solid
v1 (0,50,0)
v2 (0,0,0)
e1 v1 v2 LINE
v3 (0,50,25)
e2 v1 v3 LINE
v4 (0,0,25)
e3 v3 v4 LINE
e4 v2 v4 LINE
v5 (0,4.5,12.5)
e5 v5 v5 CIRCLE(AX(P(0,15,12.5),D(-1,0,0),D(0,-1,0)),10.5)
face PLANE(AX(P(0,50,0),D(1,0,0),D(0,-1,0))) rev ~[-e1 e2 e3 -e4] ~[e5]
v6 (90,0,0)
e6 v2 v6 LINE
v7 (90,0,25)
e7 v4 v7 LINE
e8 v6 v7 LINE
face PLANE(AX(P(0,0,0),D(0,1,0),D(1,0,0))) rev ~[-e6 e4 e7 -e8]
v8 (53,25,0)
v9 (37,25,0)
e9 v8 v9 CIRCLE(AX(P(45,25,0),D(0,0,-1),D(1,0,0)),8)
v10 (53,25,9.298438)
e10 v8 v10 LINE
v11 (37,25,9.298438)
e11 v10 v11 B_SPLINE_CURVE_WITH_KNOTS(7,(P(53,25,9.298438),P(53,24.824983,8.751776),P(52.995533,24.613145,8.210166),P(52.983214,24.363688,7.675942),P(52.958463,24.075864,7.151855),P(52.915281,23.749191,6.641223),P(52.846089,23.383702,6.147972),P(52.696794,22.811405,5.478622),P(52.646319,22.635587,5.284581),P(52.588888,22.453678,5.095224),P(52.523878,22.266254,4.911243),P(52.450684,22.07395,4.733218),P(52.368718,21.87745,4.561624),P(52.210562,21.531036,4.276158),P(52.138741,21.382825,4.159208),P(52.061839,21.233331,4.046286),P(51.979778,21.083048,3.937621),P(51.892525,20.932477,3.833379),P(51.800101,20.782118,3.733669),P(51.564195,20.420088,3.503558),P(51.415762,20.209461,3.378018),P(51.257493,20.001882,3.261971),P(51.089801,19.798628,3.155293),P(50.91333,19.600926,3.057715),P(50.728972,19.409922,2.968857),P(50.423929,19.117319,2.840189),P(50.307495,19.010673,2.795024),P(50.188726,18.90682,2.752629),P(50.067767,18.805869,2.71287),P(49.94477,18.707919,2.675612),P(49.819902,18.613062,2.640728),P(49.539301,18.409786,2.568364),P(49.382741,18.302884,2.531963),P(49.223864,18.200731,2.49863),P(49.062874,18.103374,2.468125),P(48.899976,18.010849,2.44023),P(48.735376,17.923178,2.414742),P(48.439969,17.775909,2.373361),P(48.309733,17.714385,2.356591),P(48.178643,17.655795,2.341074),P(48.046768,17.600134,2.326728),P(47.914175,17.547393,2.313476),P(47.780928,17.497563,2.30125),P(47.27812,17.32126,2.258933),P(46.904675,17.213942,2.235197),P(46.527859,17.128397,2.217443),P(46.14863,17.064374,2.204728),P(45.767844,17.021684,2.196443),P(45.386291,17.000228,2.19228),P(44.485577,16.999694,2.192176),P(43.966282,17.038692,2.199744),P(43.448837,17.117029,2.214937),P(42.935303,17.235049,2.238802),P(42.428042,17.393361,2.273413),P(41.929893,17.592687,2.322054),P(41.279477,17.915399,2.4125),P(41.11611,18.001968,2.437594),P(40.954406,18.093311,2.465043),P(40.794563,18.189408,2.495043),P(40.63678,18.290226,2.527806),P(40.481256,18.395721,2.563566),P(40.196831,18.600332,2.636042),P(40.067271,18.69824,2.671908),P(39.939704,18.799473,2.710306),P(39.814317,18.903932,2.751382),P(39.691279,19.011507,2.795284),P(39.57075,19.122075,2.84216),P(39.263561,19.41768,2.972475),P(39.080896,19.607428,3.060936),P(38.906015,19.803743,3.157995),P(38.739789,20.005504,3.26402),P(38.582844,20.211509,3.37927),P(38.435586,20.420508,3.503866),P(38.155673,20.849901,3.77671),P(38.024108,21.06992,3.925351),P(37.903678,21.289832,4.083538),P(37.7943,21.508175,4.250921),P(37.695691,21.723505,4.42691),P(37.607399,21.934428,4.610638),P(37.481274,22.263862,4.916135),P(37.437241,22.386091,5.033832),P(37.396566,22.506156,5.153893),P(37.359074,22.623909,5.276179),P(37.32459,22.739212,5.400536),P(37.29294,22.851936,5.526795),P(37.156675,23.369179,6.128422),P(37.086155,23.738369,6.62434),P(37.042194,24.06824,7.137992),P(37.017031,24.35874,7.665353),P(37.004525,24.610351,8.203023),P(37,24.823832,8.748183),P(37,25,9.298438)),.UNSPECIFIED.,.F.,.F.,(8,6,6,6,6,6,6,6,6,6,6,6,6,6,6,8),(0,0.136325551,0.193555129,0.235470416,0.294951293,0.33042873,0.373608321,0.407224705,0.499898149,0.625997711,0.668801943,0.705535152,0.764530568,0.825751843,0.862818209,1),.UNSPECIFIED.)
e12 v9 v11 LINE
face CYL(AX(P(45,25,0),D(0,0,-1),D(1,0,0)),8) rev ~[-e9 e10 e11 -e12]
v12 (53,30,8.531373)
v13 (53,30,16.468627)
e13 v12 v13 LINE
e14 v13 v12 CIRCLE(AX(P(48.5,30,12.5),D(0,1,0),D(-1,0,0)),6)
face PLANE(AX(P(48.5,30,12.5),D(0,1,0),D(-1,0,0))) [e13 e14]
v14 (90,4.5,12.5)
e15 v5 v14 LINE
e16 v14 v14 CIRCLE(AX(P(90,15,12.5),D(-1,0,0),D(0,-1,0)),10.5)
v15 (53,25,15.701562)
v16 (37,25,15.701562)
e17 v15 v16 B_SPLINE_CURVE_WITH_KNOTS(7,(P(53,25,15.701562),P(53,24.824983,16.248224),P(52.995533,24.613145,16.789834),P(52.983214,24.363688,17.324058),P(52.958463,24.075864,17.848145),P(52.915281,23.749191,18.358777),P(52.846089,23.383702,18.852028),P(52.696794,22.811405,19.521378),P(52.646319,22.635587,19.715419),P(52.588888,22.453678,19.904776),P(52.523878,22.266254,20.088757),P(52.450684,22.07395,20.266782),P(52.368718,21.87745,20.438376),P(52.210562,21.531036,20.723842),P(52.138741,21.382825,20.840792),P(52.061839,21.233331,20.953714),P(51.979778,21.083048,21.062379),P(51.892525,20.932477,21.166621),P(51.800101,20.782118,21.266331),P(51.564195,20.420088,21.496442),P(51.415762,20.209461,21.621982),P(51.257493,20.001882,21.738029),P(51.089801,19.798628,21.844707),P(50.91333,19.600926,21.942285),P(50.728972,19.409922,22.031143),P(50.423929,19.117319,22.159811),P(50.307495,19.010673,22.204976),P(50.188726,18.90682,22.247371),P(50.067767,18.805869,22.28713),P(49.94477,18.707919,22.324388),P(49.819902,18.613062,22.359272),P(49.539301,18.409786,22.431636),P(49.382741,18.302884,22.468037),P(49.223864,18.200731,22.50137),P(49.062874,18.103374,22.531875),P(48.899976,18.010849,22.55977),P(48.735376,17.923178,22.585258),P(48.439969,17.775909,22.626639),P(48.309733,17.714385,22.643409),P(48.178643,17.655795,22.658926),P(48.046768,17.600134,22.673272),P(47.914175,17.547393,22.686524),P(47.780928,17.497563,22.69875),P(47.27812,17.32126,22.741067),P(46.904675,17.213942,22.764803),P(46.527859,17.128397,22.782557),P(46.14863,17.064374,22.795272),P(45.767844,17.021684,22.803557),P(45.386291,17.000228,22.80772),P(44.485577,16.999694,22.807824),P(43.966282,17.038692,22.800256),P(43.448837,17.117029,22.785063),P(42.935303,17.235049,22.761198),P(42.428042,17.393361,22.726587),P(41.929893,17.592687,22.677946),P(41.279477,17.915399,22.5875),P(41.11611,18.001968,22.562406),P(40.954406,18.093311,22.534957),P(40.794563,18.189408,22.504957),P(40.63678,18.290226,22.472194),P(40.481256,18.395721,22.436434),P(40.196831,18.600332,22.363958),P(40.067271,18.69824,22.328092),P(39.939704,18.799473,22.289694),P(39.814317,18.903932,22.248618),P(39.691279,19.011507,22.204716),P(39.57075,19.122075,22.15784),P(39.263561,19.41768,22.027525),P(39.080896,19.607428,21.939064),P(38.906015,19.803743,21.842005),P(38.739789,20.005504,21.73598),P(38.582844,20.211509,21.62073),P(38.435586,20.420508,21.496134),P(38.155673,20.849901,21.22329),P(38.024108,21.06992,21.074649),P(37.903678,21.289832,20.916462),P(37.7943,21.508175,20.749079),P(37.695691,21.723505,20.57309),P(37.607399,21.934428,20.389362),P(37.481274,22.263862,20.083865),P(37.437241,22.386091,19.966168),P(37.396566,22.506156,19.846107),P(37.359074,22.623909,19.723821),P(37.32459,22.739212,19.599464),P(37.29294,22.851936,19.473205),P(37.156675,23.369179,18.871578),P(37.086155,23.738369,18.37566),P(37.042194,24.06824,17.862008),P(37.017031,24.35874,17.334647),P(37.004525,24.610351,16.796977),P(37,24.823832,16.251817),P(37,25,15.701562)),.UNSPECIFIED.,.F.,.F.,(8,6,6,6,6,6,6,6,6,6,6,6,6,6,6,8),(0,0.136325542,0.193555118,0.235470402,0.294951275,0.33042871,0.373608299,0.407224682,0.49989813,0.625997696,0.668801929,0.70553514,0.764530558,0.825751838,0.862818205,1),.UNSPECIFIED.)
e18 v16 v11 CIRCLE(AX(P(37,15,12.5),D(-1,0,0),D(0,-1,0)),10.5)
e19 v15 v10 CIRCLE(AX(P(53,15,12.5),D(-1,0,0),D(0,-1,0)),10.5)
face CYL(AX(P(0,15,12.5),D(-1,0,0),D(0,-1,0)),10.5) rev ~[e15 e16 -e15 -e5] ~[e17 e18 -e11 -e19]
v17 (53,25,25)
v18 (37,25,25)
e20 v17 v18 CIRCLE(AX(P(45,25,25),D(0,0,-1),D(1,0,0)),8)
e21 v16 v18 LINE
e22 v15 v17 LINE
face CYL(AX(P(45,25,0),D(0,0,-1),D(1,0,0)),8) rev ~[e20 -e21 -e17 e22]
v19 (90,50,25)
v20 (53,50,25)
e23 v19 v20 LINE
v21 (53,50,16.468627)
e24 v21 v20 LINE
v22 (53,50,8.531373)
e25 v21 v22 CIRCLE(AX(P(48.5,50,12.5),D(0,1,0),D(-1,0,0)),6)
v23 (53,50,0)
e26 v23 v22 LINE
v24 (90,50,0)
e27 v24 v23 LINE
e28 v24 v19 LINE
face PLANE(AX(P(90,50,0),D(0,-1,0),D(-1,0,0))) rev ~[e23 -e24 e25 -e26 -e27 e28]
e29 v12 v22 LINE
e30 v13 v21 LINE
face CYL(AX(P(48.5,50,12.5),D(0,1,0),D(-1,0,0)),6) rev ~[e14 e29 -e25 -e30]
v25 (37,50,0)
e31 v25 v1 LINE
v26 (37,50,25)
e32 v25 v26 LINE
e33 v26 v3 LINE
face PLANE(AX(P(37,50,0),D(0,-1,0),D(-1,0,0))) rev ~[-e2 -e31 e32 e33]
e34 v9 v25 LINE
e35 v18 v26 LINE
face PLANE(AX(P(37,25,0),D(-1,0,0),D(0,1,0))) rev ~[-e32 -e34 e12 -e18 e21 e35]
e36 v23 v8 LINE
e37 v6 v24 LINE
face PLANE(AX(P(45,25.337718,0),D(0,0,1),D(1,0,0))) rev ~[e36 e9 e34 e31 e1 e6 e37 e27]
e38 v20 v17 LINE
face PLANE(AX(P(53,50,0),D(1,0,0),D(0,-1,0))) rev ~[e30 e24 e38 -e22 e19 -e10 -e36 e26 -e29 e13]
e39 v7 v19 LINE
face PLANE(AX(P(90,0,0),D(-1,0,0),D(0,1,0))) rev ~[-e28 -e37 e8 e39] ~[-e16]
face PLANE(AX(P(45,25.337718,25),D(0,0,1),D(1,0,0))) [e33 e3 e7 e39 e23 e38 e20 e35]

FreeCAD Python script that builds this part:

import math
import FreeCAD as App
import Part
import Sketcher

V = App.Vector
Q = App.Units.Quantity

doc = App.newDocument("Part")
body = doc.addObject("PartDesign::Body", "Body")

# Sketch on XY plane
sketch1 = body.newObject("Sketcher::SketchObject", "Sketch")
sketch1.AttachmentSupport = (doc.getObject("XY_Plane"), [""])
sketch1.MapMode = "FlatFace"
sketch1.addGeometry(Part.LineSegment(V(0, 50, 0), V(0, 0, 0)), False)
sketch1.addGeometry(Part.LineSegment(V(0, 0, 0), V(90, 0, 0)), False)
sketch1.addGeometry(Part.LineSegment(V(90, 0, 0), V(90, 50, 0)), False)
sketch1.addGeometry(Part.LineSegment(V(90, 50, 0), V(53, 50, 0)), False)
sketch1.addGeometry(Part.LineSegment(V(53, 50, 0), V(53, 25, 0)), False)
sketch1.addGeometry(Part.ArcOfCircle(Part.Circle(V(45, 25, 0), V(0, 0, 1), 8), math.radians(180), math.radians(360)), False)
sketch1.addGeometry(Part.LineSegment(V(37, 25, 0), V(37, 50, 0)), False)
sketch1.addGeometry(Part.LineSegment(V(37, 50, 0), V(0, 50, 0)), False)
sketch1.addConstraint(Sketcher.Constraint("Coincident", 0, 2, 1, 1))
sketch1.addConstraint(Sketcher.Constraint("Coincident", 1, 2, 2, 1))
sketch1.addConstraint(Sketcher.Constraint("Coincident", 2, 2, 3, 1))
sketch1.addConstraint(Sketcher.Constraint("Coincident", 3, 2, 4, 1))
sketch1.addConstraint(Sketcher.Constraint("Tangent", 4, 2, 5, 2))
sketch1.addConstraint(Sketcher.Constraint("Tangent", 5, 1, 6, 1))
sketch1.addConstraint(Sketcher.Constraint("Coincident", 6, 2, 7, 1))
sketch1.addConstraint(Sketcher.Constraint("Coincident", 7, 2, 0, 1))
sketch1.addConstraint(Sketcher.Constraint("Vertical", 0))
sketch1.addConstraint(Sketcher.Constraint("Horizontal", 1))
sketch1.addConstraint(Sketcher.Constraint("Vertical", 2))
sketch1.addConstraint(Sketcher.Constraint("Horizontal", 3))
sketch1.addConstraint(Sketcher.Constraint("Vertical", 4))
sketch1.addConstraint(Sketcher.Constraint("Vertical", 6))
sketch1.addConstraint(Sketcher.Constraint("Horizontal", 7))
sketch1.addConstraint(Sketcher.Constraint("Coincident", 0, 2, -1, 1))
sketch1.addConstraint(Sketcher.Constraint("Horizontal", 3, 2, 6, 2))
sketch1.addConstraint(Sketcher.Constraint("Equal", 3, 7))
sketch1.addConstraint(Sketcher.Constraint("Radius", 5, Q("8 mm")))
sketch1.addConstraint(Sketcher.Constraint("DistanceX", 1, 1, 1, 2, Q("90 mm")))
sketch1.addConstraint(Sketcher.Constraint("DistanceY", 0, 2, 0, 1, Q("50 mm")))
sketch1.addConstraint(Sketcher.Constraint("DistanceY", 4, 2, 4, 1, Q("25 mm")))
pad1 = body.newObject("PartDesign::Pad", "Pad")
pad1.Profile = sketch1
pad1.Length = 25

# Sketch on YZ plane
sketch2 = body.newObject("Sketcher::SketchObject", "Sketch001")
sketch2.AttachmentSupport = (doc.getObject("YZ_Plane"), [""])
sketch2.MapMode = "FlatFace"
sketch2.addGeometry(Part.Circle(V(15, 12, 0), V(0, 0, 1), 10), False)
sketch2.addConstraint(Sketcher.Constraint("Diameter", 0, Q("21 mm")))
sketch2.addConstraint(Sketcher.Constraint("DistanceX", -1, 1, 0, 3, Q("15 mm")))
sketch2.addConstraint(Sketcher.Constraint("DistanceY", -1, 1, 0, 3, Q("12.5 mm")))
pocket1 = body.newObject("PartDesign::Pocket", "Pocket")
pocket1.Profile = sketch2
pocket1.Type = "ThroughAll"
pocket1.Reversed = True

# Sketch on XZ plane
sketch3 = body.newObject("Sketcher::SketchObject", "Sketch002")
sketch3.AttachmentSupport = (doc.getObject("XZ_Plane"), [""])
sketch3.MapMode = "FlatFace"
sketch3.AttachmentOffset = App.Placement(V(0, 0, -50), App.Rotation())
sketch3.addGeometry(Part.Circle(V(48, 12, 0), V(0, 0, 1), 6), False)
sketch3.addGeometry(Part.Circle(V(-12, 12, 0), V(0, 0, 1), 6), False)
sketch3.addConstraint(Sketcher.Constraint("Equal", 0, 1))
sketch3.addConstraint(Sketcher.Constraint("Horizontal", 0, 3, 1, 3))
sketch3.addConstraint(Sketcher.Constraint("Diameter", 0, Q("12 mm")))
sketch3.addConstraint(Sketcher.Constraint("DistanceX", 1, 3, 0, 3, Q("60 mm")))
sketch3.addConstraint(Sketcher.Constraint("DistanceX", -1, 1, 0, 3, Q("48.5 mm")))
sketch3.addConstraint(Sketcher.Constraint("DistanceY", -1, 1, 0, 3, Q("12.5 mm")))
pocket2 = body.newObject("PartDesign::Pocket", "Pocket001")
pocket2.Profile = sketch3
pocket2.Length = 20
pocket2.Reversed = True

doc.recompute()
